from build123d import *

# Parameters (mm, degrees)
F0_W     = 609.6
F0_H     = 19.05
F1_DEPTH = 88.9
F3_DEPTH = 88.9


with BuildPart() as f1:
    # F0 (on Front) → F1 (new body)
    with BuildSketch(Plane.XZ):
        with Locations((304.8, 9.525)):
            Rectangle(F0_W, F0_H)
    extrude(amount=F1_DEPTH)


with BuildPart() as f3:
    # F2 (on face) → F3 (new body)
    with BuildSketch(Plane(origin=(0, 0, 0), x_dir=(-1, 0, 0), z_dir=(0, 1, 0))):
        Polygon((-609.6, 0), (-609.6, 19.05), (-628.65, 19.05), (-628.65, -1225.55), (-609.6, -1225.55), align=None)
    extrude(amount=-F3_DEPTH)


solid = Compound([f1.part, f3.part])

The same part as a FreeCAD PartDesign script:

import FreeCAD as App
import Part
import Sketcher
from FreeCAD import Vector
Q = App.Units.Quantity


def add_polygon(sketch, points):
    """Adds a closed chain of lines whose ends are joined by coincident constraints."""
    first, n = sketch.GeometryCount, len(points)
    for a, b in zip(points, points[1:] + points[:1]):
        sketch.addGeometry(Part.LineSegment(App.Vector(*a, 0), App.Vector(*b, 0)), False)
    for i in range(n):
        sketch.addConstraint(Sketcher.Constraint("Coincident", first + i, 2, first + (i + 1) % n, 1))

doc = App.newDocument("Part")
body = doc.addObject("PartDesign::Body", "Body")

sketch1 = body.newObject("Sketcher::SketchObject", "Sketch")
sketch1.AttachmentSupport = (doc.getObject("XZ_Plane"), [""])
sketch1.MapMode = "FlatFace"
add_polygon(sketch1, [(0, 19), (0, 0), (610, 0), (610, 19)])
sketch1.addConstraint([
    Sketcher.Constraint("Vertical", 0),
    Sketcher.Constraint("Horizontal", 1),
    Sketcher.Constraint("Vertical", 2),
    Sketcher.Constraint("Horizontal", 3),
    Sketcher.Constraint("Coincident", 0, 2, -1, 1),
    Sketcher.Constraint("DistanceX", 1, 1, 1, 2, Q("24 in")),
    Sketcher.Constraint("DistanceY", 0, 2, 0, 1, Q("0.75 in")),
])
pad1 = body.newObject("PartDesign::Pad", "Pad")
pad1.Profile = sketch1
pad1.Length = Q("3.5 in")
body2 = doc.addObject("PartDesign::Body", "Body001")

sketch2 = body2.newObject("Sketcher::SketchObject", "Sketch001")
sketch2.AttachmentSupport = (doc.getObject("XZ_Plane001"), [""])
sketch2.MapMode = "FlatFace"
add_polygon(sketch2, [(610, 19), (629, 19), (629, -1226), (610, -1226)])
sketch2.addConstraint([
    Sketcher.Constraint("Horizontal", 0),
    Sketcher.Constraint("Vertical", 1),
    Sketcher.Constraint("Horizontal", 2),
    Sketcher.Constraint("Vertical", 3),
    Sketcher.Constraint("DistanceY", 1, 2, 1, 1, Q("49 in")),
    Sketcher.Constraint("DistanceX", -1, 1, 2, 2, Q("24 in")),
    Sketcher.Constraint("DistanceX", 0, 1, 0, 2, Q("0.75 in")),
    Sketcher.Constraint("DistanceY", -1, 1, 0, 2, Q("0.75 in")),
])
pad2 = body2.newObject("PartDesign::Pad", "Pad001")
pad2.Profile = sketch2
pad2.Length = Q("3.5 in")

doc.recompute()
